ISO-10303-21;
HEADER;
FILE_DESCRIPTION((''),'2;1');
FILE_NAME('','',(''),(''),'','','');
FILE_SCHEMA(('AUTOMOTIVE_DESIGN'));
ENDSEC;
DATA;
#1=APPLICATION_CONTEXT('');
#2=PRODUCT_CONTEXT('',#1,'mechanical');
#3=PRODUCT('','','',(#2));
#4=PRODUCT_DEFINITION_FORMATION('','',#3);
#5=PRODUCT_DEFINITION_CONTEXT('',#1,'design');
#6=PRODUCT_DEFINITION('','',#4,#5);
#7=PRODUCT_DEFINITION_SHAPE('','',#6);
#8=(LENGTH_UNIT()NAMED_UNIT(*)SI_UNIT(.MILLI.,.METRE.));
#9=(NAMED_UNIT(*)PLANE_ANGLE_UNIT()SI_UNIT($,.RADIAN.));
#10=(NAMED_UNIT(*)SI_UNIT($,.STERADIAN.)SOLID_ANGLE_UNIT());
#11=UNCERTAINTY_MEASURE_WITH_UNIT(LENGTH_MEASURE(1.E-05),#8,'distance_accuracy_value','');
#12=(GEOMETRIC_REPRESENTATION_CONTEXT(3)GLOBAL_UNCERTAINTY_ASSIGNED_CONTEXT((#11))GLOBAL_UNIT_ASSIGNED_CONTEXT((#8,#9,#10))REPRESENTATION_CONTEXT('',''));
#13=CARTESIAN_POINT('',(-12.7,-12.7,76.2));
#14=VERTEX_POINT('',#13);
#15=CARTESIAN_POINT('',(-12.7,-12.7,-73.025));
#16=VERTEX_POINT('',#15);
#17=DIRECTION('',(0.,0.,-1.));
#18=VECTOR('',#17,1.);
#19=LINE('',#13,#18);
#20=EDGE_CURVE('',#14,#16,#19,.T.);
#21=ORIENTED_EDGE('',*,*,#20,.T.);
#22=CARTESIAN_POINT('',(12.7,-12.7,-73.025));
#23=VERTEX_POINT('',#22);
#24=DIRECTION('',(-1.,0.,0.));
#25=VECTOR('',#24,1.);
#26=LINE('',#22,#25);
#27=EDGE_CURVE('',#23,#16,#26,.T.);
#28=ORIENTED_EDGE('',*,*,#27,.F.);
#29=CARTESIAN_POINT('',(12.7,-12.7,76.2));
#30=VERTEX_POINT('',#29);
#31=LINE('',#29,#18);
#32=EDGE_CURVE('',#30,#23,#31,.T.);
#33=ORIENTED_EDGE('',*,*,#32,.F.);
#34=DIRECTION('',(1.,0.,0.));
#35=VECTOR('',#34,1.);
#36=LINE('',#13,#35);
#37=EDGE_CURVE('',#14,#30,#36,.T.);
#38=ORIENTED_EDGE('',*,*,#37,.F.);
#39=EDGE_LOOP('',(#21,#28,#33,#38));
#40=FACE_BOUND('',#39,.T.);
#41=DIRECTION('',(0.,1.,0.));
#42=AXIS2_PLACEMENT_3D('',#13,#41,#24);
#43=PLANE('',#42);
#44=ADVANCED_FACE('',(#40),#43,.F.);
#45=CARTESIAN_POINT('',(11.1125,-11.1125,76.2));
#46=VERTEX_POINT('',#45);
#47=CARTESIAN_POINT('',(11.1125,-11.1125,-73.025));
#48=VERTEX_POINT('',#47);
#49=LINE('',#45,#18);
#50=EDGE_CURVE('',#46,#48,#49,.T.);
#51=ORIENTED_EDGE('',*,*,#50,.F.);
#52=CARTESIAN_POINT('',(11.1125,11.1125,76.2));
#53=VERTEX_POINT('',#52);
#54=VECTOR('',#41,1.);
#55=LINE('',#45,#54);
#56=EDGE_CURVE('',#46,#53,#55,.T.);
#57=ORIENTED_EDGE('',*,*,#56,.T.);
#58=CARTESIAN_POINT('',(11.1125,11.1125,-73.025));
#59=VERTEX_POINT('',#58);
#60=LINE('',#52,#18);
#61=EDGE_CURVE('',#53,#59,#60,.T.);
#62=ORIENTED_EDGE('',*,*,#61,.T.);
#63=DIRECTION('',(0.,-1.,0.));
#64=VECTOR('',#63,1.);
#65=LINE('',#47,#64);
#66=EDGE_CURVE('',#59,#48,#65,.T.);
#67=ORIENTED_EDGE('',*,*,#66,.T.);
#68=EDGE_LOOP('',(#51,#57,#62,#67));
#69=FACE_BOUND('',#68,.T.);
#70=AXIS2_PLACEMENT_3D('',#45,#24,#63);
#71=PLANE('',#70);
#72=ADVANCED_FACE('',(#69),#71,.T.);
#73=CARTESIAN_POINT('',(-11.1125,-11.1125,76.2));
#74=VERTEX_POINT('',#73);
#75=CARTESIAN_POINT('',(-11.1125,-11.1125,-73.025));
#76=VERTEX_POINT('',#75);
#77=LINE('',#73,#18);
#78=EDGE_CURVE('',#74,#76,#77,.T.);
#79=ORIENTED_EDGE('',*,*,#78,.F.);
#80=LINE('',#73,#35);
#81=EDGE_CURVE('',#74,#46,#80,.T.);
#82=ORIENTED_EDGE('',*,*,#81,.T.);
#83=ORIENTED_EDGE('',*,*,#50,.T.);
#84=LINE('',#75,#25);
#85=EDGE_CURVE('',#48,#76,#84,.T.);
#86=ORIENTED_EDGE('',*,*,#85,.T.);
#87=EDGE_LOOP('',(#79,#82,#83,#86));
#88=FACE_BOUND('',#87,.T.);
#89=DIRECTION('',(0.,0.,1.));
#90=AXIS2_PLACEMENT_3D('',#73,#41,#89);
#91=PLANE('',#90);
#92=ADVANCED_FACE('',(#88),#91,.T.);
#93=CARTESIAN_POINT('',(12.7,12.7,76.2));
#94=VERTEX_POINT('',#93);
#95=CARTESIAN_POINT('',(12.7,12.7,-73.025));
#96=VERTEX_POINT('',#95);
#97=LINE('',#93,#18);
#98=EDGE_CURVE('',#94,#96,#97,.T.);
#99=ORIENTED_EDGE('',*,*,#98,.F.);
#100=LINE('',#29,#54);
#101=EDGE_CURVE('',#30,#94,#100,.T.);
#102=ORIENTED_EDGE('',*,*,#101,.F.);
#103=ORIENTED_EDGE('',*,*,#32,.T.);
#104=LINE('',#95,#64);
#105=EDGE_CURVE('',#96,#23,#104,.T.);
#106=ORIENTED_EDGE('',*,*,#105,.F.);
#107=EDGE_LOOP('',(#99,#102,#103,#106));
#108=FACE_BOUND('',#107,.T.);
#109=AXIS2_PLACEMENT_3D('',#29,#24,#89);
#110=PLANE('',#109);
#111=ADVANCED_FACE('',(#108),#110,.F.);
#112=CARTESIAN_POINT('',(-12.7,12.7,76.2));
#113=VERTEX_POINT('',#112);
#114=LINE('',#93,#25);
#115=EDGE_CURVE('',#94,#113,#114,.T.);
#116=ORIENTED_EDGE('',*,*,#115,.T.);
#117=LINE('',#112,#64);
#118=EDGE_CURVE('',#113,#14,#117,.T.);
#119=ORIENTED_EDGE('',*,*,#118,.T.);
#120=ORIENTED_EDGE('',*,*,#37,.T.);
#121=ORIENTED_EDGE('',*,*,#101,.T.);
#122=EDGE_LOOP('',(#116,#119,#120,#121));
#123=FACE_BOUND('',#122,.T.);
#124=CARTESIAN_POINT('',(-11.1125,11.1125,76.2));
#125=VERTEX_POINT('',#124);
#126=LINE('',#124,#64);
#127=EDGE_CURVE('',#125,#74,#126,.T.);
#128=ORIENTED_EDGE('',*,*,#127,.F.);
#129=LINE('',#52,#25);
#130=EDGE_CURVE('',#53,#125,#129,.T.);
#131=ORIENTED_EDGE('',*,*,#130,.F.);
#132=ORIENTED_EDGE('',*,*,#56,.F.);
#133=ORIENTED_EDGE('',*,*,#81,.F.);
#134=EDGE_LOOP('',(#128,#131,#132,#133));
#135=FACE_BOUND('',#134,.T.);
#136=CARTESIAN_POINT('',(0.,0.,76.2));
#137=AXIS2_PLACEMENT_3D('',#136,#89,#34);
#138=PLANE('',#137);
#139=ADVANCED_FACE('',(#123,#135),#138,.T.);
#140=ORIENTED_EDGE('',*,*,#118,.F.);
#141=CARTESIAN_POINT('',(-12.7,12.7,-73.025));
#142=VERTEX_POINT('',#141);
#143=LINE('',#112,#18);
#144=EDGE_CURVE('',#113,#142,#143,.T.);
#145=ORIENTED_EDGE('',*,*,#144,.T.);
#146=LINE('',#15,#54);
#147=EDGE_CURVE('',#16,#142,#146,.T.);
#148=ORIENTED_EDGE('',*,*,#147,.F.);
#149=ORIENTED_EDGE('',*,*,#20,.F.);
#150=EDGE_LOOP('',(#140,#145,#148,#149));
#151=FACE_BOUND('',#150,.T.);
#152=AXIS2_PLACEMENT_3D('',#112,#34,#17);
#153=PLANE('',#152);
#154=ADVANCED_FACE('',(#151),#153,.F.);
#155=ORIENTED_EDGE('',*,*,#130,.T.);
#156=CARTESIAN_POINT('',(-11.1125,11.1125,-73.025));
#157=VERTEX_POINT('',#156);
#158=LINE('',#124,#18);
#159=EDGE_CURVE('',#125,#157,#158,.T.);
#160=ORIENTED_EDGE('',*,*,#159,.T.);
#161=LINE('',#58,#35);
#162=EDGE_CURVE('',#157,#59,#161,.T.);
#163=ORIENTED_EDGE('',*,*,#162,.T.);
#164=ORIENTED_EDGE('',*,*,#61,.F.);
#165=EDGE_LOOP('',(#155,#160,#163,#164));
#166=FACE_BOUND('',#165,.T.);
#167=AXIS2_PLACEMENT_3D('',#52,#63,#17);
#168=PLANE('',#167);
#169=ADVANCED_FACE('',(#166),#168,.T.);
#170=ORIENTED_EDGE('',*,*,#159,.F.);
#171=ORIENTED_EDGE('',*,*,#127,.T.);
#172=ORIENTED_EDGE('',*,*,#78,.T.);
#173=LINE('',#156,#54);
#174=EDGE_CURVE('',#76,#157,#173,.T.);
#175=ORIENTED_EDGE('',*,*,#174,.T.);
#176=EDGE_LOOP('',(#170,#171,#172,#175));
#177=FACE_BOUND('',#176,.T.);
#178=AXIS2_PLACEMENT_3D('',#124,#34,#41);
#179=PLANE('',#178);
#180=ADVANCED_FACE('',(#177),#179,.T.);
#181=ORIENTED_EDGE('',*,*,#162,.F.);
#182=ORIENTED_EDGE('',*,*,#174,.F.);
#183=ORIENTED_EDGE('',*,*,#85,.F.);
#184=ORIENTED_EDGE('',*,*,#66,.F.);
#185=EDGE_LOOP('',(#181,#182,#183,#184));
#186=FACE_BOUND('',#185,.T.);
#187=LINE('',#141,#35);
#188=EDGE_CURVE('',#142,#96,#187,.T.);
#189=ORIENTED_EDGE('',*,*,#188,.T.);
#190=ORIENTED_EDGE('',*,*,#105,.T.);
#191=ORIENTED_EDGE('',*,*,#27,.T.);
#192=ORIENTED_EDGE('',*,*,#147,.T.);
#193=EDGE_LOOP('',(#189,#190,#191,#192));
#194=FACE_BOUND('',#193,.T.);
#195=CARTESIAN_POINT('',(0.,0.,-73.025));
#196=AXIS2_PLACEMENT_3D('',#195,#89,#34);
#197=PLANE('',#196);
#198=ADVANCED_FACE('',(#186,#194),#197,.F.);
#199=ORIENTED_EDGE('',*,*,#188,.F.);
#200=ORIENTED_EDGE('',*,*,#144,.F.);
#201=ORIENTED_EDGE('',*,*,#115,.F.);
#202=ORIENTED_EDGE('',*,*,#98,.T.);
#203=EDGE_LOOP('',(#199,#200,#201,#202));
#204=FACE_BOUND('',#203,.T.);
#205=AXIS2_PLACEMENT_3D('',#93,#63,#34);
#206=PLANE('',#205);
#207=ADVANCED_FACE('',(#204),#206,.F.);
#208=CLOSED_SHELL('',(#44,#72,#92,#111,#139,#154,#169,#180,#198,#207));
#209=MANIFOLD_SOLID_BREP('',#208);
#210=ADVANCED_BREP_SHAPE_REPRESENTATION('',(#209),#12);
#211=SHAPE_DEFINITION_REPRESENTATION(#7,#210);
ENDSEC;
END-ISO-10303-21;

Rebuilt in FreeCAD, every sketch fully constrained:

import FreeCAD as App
import Part
import Sketcher
from FreeCAD import Vector
Q = App.Units.Quantity


def add_polygon(sketch, points):
    """Adds a closed chain of lines whose ends are joined by coincident constraints."""
    first, n = sketch.GeometryCount, len(points)
    for a, b in zip(points, points[1:] + points[:1]):
        sketch.addGeometry(Part.LineSegment(App.Vector(*a, 0), App.Vector(*b, 0)), False)
    for i in range(n):
        sketch.addConstraint(Sketcher.Constraint("Coincident", first + i, 2, first + (i + 1) % n, 1))

doc = App.newDocument("Part")
body = doc.addObject("PartDesign::Body", "Body")

sketch1 = body.newObject("Sketcher::SketchObject", "Sketch")
sketch1.AttachmentSupport = (doc.getObject("XY_Plane"), [""])
sketch1.MapMode = "FlatFace"
add_polygon(sketch1, [(-12.7, 12.7), (-12.7, -12.7), (12.7, -12.7), (12.7, 12.7)])
add_polygon(sketch1, [(11.1125, -11.1125), (-11.1125, -11.1125), (-11.1125, 11.1125), (11.1125, 11.1125)])
sketch1.addConstraint(Sketcher.Constraint("Vertical", 0))
sketch1.addConstraint(Sketcher.Constraint("Horizontal", 1))
sketch1.addConstraint(Sketcher.Constraint("Vertical", 2))
sketch1.addConstraint(Sketcher.Constraint("Horizontal", 3))
sketch1.addConstraint(Sketcher.Constraint("Horizontal", 4))
sketch1.addConstraint(Sketcher.Constraint("Vertical", 5))
sketch1.addConstraint(Sketcher.Constraint("Horizontal", 6))
sketch1.addConstraint(Sketcher.Constraint("Vertical", 7))
sketch1.addConstraint(Sketcher.Constraint("Symmetric", 0, 2, 2, 2, -1, 1))
sketch1.addConstraint(Sketcher.Constraint("Symmetric", 4, 2, 6, 2, -1, 1))
sketch1.addConstraint(Sketcher.Constraint("Equal", 3, 0))
sketch1.addConstraint(Sketcher.Constraint("Equal", 6, 5))
sketch1.addConstraint(Sketcher.Constraint("DistanceX", 1, 1, 1, 2, Q("1 in")))
sketch1.addConstraint(Sketcher.Constraint("DistanceX", 4, 2, 4, 1, Q("0.875 in")))
pad1 = body.newObject("PartDesign::Pad", "Pad")
pad1.Profile = sketch1
pad1.Type = "TwoLengths"
pad1.Length = Q("3 in")
pad1.Length2 = Q("3 in")

sketch2 = body.newObject("Sketcher::SketchObject", "Sketch001")
sketch2.AttachmentSupport = (doc.getObject("XY_Plane"), [""])
sketch2.MapMode = "FlatFace"
sketch2.AttachmentOffset = App.Placement(Vector(0, 0, -3 * 25.4), App.Rotation())
add_polygon(sketch2, [(12.7, 12.7), (12.7, -12.7), (-12.7, -12.7), (-12.7, 12.7)])
add_polygon(sketch2, [(-11.1125, -11.1125), (11.1125, -11.1125), (11.1125, 11.1125), (-11.1125, 11.1125)])
sketch2.addConstraint(Sketcher.Constraint("Vertical", 0))
sketch2.addConstraint(Sketcher.Constraint("Horizontal", 1))
sketch2.addConstraint(Sketcher.Constraint("Vertical", 2))
sketch2.addConstraint(Sketcher.Constraint("Horizontal", 3))
sketch2.addConstraint(Sketcher.Constraint("Horizontal", 4))
sketch2.addConstraint(Sketcher.Constraint("Vertical", 5))
sketch2.addConstraint(Sketcher.Constraint("Horizontal", 6))
sketch2.addConstraint(Sketcher.Constraint("Vertical", 7))
sketch2.addConstraint(Sketcher.Constraint("Symmetric", 0, 2, 2, 2, -1, 1))
sketch2.addConstraint(Sketcher.Constraint("Symmetric", 4, 2, 6, 2, -1, 1))
sketch2.addConstraint(Sketcher.Constraint("Equal", 3, 0))
sketch2.addConstraint(Sketcher.Constraint("Equal", 6, 5))
sketch2.addConstraint(Sketcher.Constraint("DistanceX", 1, 2, 1, 1, Q("1 in")))
sketch2.addConstraint(Sketcher.Constraint("DistanceX", 4, 1, 4, 2, Q("0.875 in")))
pocket1 = body.newObject("PartDesign::Pocket", "Pocket")
pocket1.Profile = sketch2
pocket1.Length = Q("0.125 in")
pocket1.Reversed = True

doc.recompute()
